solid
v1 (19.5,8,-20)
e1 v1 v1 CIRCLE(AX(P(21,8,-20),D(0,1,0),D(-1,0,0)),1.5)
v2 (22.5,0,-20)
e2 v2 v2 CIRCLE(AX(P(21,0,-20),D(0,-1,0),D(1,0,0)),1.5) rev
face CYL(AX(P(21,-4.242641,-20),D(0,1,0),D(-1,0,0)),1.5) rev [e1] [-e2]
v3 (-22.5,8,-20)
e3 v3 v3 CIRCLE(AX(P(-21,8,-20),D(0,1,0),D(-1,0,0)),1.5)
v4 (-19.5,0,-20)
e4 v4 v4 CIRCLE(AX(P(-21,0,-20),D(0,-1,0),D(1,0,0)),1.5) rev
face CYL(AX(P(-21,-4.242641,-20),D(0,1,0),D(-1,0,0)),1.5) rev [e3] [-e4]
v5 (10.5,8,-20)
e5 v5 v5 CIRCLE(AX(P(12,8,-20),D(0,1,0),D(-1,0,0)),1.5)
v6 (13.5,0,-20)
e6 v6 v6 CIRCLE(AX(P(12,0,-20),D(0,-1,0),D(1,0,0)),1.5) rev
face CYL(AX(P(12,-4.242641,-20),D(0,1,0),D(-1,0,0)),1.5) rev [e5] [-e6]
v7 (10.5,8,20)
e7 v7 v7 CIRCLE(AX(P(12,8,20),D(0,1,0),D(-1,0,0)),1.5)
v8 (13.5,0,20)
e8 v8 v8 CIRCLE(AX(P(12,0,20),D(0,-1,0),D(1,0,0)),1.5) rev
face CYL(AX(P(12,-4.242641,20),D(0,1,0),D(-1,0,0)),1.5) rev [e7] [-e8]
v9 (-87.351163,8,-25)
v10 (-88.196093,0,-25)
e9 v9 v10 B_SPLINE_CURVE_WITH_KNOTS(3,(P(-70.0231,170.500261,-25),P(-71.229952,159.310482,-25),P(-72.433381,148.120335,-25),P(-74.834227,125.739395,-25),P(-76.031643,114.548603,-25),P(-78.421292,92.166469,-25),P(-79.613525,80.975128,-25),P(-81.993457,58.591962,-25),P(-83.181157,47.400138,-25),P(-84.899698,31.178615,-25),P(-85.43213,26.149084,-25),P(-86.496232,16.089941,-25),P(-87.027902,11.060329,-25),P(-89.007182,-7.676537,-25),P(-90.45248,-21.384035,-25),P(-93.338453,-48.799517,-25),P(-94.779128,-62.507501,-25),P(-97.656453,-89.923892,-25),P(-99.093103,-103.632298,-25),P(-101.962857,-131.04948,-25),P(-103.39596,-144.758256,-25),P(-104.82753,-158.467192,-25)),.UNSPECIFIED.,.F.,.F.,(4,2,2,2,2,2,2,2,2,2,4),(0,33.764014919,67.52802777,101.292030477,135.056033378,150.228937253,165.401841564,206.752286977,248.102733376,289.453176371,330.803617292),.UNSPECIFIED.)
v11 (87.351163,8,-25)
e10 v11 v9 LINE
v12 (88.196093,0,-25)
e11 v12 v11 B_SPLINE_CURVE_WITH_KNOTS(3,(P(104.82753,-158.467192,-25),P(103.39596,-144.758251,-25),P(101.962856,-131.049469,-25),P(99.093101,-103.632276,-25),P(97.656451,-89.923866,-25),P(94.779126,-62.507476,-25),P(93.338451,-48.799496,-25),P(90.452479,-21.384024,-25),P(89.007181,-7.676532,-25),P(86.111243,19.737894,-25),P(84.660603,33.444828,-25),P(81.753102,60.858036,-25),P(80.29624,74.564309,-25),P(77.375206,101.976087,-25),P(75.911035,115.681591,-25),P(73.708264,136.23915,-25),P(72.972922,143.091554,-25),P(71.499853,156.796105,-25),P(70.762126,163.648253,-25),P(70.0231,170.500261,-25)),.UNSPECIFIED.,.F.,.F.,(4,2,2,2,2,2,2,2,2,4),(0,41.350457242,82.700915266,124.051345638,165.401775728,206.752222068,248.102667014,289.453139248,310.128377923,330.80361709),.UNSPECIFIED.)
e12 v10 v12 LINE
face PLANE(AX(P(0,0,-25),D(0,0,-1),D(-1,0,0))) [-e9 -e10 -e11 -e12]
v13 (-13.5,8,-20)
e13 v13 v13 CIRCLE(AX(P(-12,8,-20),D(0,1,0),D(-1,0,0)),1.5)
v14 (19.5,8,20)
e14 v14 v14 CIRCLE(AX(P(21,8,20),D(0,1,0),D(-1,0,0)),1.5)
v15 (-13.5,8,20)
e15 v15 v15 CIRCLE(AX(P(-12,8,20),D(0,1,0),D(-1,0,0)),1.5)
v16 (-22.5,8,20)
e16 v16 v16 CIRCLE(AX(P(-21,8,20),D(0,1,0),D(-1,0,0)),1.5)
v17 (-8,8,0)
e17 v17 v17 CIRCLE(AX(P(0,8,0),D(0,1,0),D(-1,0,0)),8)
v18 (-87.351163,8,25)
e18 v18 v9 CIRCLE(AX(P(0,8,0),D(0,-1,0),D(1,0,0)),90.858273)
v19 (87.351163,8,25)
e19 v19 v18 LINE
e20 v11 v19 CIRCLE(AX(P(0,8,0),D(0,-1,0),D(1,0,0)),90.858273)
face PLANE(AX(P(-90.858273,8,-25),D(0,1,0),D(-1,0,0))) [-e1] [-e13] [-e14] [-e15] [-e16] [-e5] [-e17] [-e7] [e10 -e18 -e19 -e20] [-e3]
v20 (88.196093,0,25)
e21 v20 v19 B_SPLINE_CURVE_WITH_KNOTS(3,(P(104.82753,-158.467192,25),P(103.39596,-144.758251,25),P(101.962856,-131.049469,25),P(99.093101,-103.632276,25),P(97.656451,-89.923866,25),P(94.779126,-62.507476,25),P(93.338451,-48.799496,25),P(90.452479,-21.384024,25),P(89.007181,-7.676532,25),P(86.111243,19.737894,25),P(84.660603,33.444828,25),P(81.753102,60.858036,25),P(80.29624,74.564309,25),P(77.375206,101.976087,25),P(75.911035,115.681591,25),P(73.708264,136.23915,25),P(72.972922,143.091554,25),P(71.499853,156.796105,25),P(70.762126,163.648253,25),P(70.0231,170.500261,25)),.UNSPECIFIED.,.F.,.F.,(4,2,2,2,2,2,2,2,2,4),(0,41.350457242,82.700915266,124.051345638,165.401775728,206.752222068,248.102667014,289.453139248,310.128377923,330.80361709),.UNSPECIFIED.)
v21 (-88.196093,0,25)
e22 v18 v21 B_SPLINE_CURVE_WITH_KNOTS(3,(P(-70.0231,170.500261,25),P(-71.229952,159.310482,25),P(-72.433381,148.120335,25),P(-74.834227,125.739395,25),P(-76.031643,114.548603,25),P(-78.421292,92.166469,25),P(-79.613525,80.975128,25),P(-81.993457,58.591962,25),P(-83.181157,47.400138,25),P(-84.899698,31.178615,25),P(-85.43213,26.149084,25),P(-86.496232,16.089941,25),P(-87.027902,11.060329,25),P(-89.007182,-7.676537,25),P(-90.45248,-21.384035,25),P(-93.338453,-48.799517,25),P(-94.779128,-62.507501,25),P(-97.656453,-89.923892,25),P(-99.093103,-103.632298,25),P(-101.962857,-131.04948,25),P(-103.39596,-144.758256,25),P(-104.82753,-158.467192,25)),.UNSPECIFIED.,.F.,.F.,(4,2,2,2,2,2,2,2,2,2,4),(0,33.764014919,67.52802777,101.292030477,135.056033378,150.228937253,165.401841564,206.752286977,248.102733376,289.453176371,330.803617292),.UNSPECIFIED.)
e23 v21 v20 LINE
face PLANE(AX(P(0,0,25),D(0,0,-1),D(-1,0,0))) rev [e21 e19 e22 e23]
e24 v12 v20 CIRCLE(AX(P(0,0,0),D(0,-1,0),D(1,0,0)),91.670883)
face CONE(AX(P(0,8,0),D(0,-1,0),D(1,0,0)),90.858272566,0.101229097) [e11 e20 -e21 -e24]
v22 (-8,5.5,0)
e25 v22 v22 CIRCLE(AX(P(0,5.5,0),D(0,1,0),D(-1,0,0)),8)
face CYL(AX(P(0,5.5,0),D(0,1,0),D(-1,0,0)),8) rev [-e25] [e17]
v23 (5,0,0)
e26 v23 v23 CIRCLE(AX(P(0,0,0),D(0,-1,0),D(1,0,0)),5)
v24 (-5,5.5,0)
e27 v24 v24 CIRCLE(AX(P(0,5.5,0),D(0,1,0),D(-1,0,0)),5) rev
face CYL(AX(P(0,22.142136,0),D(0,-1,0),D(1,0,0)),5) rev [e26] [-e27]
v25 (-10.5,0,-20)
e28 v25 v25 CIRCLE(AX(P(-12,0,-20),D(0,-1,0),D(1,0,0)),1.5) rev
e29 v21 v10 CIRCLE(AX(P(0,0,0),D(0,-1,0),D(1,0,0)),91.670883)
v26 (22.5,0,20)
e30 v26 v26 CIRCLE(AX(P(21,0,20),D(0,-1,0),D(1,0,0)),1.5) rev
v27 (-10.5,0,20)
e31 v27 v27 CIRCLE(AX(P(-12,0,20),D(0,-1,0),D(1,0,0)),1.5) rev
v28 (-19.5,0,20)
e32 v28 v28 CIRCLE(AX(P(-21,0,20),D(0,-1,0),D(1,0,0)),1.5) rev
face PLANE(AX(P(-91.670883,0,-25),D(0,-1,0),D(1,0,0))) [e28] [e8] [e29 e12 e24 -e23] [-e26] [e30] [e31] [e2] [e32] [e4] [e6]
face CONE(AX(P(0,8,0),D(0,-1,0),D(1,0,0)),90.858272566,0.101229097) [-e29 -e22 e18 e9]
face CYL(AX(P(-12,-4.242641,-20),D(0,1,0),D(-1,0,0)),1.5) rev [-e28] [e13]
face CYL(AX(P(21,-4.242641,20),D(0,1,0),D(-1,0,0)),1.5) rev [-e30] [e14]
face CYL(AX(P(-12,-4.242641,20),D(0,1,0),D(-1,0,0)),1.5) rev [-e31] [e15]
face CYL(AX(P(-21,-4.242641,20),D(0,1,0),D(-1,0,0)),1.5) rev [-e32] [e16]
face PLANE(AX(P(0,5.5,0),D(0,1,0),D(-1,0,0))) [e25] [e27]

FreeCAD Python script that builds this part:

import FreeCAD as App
import Part
import Sketcher
from FreeCAD import Vector
Q = App.Units.Quantity

doc = App.newDocument("Part")
body = doc.addObject("PartDesign::Body", "Body")

sketch1 = doc.addObject("Sketcher::SketchObject", "Sketch")
body.addObject(sketch1)
sketch1.AttachmentSupport = (doc.XY_Plane, [""])
sketch1.MapMode = "FlatFace"
sketch1.addGeometry([
    Part.LineSegment(Vector(92, 0, 0), Vector(91, 8, 0)),
    Part.LineSegment(Vector(91, 8, 0), Vector(-91, 8, 0)),
    Part.LineSegment(Vector(-91, 8, 0), Vector(-92, 0, 0)),
    Part.LineSegment(Vector(-92, 0, 0), Vector(92, 0, 0)),
], False)
sketch1.addConstraint([
    Sketcher.Constraint("Coincident", 0, 2, 1, 1),
    Sketcher.Constraint("Coincident", 1, 2, 2, 1),
    Sketcher.Constraint("Coincident", 2, 2, 3, 1),
    Sketcher.Constraint("Coincident", 3, 2, 0, 1),
    Sketcher.Constraint("Horizontal", 1),
    Sketcher.Constraint("Horizontal", 3),
    Sketcher.Constraint("Symmetric", 2, 2, 3, 2, -1, 1),
    Sketcher.Constraint("Equal", 0, 2),
    Sketcher.Constraint("DistanceY", -1, 1, 0, 2, 8.0),
    Sketcher.Constraint("Angle", 0, Q("95.8 deg")),
    Sketcher.Constraint("DistanceX", 1, 2, 1, 1, 181.716545),
])
pad1 = doc.addObject("PartDesign::Pad", "Pad")
body.addObject(pad1)
pad1.Profile = sketch1
pad1.Type = "TwoLengths"
pad1.Length = 25
pad1.Length2 = 25

sketch2 = doc.addObject("Sketcher::SketchObject", "Sketch001")
body.addObject(sketch2)
sketch2.AttachmentSupport = (doc.XY_Plane, [""])
sketch2.MapMode = "FlatFace"
sketch2.addGeometry([
    Part.LineSegment(Vector(91, 8, 0), Vector(92, 0, 0)),
    Part.LineSegment(Vector(92, 0, 0), Vector(98, 0, 0)),
    Part.LineSegment(Vector(98, 0, 0), Vector(98, 8, 0)),
    Part.LineSegment(Vector(98, 8, 0), Vector(91, 8, 0)),
], False)
sketch2.addConstraint([
    Sketcher.Constraint("Coincident", 0, 2, 1, 1),
    Sketcher.Constraint("Coincident", 1, 2, 2, 1),
    Sketcher.Constraint("Coincident", 2, 2, 3, 1),
    Sketcher.Constraint("Coincident", 3, 2, 0, 1),
    Sketcher.Constraint("Horizontal", 1),
    Sketcher.Constraint("Vertical", 2),
    Sketcher.Constraint("Horizontal", 3),
    Sketcher.Constraint("PointOnObject", 0, 2, -1),
    Sketcher.Constraint("DistanceY", 2, 1, 2, 2, 8.0),
    Sketcher.Constraint("Angle", 0, Q("-84.2 deg")),
    Sketcher.Constraint("DistanceX", 1, 1, 1, 2, 6.249983),
    Sketcher.Constraint("DistanceX", -1, 1, 0, 2, 91.670883),
])
groove = doc.addObject("PartDesign::Groove", "Groove")
body.addObject(groove)
groove.Profile = sketch2
groove.ReferenceAxis = (sketch2, ["V_Axis"])
groove.Angle = 360

sketch3 = doc.addObject("Sketcher::SketchObject", "Sketch002")
body.addObject(sketch3)
sketch3.AttachmentSupport = (doc.XZ_Plane, [""])
sketch3.MapMode = "FlatFace"
sketch3.addGeometry(Part.Circle(Vector(0, 0, 0), Vector(0, 0, 1), 5), False)
sketch3.addConstraint([
    Sketcher.Constraint("Coincident", 0, 3, -1, 1),
    Sketcher.Constraint("Diameter", 0, 10.0),
])
pocket1 = doc.addObject("PartDesign::Pocket", "Pocket")
body.addObject(pocket1)
pocket1.Profile = sketch3
pocket1.Length = 8

sketch4 = doc.addObject("Sketcher::SketchObject", "Sketch003")
body.addObject(sketch4)
sketch4.AttachmentSupport = (doc.XZ_Plane, [""])
sketch4.MapMode = "FlatFace"
sketch4.AttachmentOffset = App.Placement(Vector(0, 0, -8), App.Rotation())
sketch4.addGeometry(Part.Circle(Vector(0, 0, 0), Vector(0, 0, 1), 8), False)
sketch4.addConstraint([
    Sketcher.Constraint("Coincident", 0, 3, -1, 1),
    Sketcher.Constraint("Diameter", 0, 16.0),
])
pocket2 = doc.addObject("PartDesign::Pocket", "Pocket001")
body.addObject(pocket2)
pocket2.Profile = sketch4
pocket2.Length = 2.5
pocket2.Reversed = True

sketch5 = doc.addObject("Sketcher::SketchObject", "Sketch004")
body.addObject(sketch5)
sketch5.AttachmentSupport = (doc.XZ_Plane, [""])
sketch5.MapMode = "FlatFace"
sketch5.AttachmentOffset = App.Placement(Vector(0, 0, -8), App.Rotation())
sketch5.addGeometry([
    Part.Circle(Vector(12, -20, 0), Vector(0, 0, 1), 1.5),
    Part.Circle(Vector(-12, -20, 0), Vector(0, 0, 1), 1.5),
    Part.Circle(Vector(-12, 20, 0), Vector(0, 0, 1), 1.5),
    Part.Circle(Vector(12, 20, 0), Vector(0, 0, 1), 1.5),
], False)
sketch5.addConstraint([
    Sketcher.Constraint("Equal", 0, 1),
    Sketcher.Constraint("Equal", 1, 2),
    Sketcher.Constraint("Equal", 2, 3),
    Sketcher.Constraint("Symmetric", 0, 3, 2, 3, -1, 1),
    Sketcher.Constraint("Symmetric", 1, 3, 3, 3, -1, 1),
    Sketcher.Constraint("Symmetric", 0, 3, 1, 3, -2),
    Sketcher.Constraint("Diameter", 0, 3.0),
    Sketcher.Constraint("DistanceX", -1, 1, 0, 3, 12.0),
    Sketcher.Constraint("DistanceY", 0, 3, -1, 1, 20.0),
])
pocket3 = doc.addObject("PartDesign::Pocket", "Pocket002")
body.addObject(pocket3)
pocket3.Profile = sketch5
pocket3.Length = 8
pocket3.Reversed = True

sketch6 = doc.addObject("Sketcher::SketchObject", "Sketch005")
body.addObject(sketch6)
sketch6.AttachmentSupport = (doc.XZ_Plane, [""])
sketch6.MapMode = "FlatFace"
sketch6.AttachmentOffset = App.Placement(Vector(0, 0, -8), App.Rotation())
sketch6.addGeometry([
    Part.Circle(Vector(21, -20, 0), Vector(0, 0, 1), 1.5),
    Part.Circle(Vector(-21, -20, 0), Vector(0, 0, 1), 1.5),
    Part.Circle(Vector(-21, 20, 0), Vector(0, 0, 1), 1.5),
    Part.Circle(Vector(21, 20, 0), Vector(0, 0, 1), 1.5),
], False)
sketch6.addConstraint([
    Sketcher.Constraint("Equal", 0, 1),
    Sketcher.Constraint("Equal", 1, 2),
    Sketcher.Constraint("Equal", 2, 3),
    Sketcher.Constraint("Symmetric", 0, 3, 2, 3, -1, 1),
    Sketcher.Constraint("Symmetric", 1, 3, 3, 3, -1, 1),
    Sketcher.Constraint("Symmetric", 0, 3, 1, 3, -2),
    Sketcher.Constraint("Diameter", 0, 3.0),
    Sketcher.Constraint("DistanceX", -1, 1, 0, 3, 21.0),
    Sketcher.Constraint("DistanceY", 0, 3, -1, 1, 20.0),
])
pocket4 = doc.addObject("PartDesign::Pocket", "Pocket003")
body.addObject(pocket4)
pocket4.Profile = sketch6
pocket4.Length = 8
pocket4.Reversed = True

doc.recompute()
